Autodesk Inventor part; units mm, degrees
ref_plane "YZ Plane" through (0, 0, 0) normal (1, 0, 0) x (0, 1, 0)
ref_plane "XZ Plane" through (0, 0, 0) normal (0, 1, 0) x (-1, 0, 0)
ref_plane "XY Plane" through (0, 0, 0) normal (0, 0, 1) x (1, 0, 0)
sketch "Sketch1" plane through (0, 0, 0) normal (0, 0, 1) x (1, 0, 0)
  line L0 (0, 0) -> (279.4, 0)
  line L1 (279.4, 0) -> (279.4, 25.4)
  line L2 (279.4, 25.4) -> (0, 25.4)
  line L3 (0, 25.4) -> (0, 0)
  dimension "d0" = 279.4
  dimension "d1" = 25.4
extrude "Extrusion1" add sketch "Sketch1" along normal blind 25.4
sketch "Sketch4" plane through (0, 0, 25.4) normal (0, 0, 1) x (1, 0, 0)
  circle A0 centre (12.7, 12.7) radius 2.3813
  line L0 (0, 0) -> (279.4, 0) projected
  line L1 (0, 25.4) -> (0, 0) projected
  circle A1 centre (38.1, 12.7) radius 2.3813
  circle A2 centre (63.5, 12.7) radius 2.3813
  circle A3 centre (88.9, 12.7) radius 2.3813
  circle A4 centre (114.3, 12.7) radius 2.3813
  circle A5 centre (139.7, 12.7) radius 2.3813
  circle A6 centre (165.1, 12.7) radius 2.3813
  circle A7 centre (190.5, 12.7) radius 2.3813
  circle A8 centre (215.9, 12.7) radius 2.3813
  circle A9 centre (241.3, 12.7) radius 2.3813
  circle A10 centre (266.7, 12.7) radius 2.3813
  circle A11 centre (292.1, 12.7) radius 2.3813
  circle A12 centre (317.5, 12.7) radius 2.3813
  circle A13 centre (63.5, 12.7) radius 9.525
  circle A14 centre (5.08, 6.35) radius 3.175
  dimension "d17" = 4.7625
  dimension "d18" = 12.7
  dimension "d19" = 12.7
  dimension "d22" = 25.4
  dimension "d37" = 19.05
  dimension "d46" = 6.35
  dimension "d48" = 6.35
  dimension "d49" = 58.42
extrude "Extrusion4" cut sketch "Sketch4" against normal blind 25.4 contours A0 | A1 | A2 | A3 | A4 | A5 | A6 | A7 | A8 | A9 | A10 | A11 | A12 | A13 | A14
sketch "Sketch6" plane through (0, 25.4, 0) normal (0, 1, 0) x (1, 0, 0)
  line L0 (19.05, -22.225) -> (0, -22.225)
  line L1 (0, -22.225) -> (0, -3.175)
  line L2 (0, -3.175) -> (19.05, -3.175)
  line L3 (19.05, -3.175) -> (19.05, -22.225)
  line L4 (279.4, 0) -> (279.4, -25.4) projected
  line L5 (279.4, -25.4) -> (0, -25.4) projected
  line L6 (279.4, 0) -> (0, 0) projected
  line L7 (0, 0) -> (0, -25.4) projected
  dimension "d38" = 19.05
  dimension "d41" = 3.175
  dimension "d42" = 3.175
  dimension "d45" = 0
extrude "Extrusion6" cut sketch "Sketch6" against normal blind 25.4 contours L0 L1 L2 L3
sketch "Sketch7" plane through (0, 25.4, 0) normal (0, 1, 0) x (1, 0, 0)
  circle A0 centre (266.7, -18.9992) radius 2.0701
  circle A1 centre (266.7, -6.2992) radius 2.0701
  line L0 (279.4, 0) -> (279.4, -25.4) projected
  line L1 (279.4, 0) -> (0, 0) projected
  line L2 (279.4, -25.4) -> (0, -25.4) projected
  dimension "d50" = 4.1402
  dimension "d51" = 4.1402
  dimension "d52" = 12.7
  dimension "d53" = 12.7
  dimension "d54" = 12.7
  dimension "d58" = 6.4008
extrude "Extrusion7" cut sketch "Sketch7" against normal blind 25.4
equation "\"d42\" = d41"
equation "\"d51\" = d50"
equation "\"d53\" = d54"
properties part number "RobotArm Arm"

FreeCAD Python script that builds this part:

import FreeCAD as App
import Part
import Sketcher

V = App.Vector
Q = App.Units.Quantity


def add_polygon(sketch, points):
    """Adds a closed chain of lines whose ends are joined by coincident constraints."""
    first, n = sketch.GeometryCount, len(points)
    for a, b in zip(points, points[1:] + points[:1]):
        sketch.addGeometry(Part.LineSegment(App.Vector(*a, 0), App.Vector(*b, 0)), False)
    for i in range(n):
        sketch.addConstraint(Sketcher.Constraint("Coincident", first + i, 2, first + (i + 1) % n, 1))

doc = App.newDocument("Part")
body = doc.addObject("PartDesign::Body", "Body")

sketch1 = doc.addObject("Sketcher::SketchObject", "Sketch")
body.addObject(sketch1)
sketch1.AttachmentSupport = (doc.XY_Plane, [""])
sketch1.MapMode = "FlatFace"
add_polygon(sketch1, [(0, 25.4), (0, 0), (279.4, 0), (279.4, 25.4)])
sketch1.addConstraint([
    Sketcher.Constraint("Vertical", 0),
    Sketcher.Constraint("Horizontal", 1),
    Sketcher.Constraint("Vertical", 2),
    Sketcher.Constraint("Horizontal", 3),
    Sketcher.Constraint("Coincident", 0, 2, -1, 1),
    Sketcher.Constraint("DistanceX", 1, 1, 1, 2, Q("11 in")),
    Sketcher.Constraint("DistanceY", 0, 2, 0, 1, Q("1 in")),
])
pad1 = doc.addObject("PartDesign::Pad", "Pad")
body.addObject(pad1)
pad1.Profile = sketch1
pad1.Length = Q("1 in")

sketch2 = doc.addObject("Sketcher::SketchObject", "Sketch001")
body.addObject(sketch2)
sketch2.AttachmentSupport = (doc.XY_Plane, [""])
sketch2.MapMode = "FlatFace"
sketch2.AttachmentOffset = App.Placement(V(0, 0, 1 * 25.4), App.Rotation())
sketch2.addGeometry([
    Part.Circle(V(12.7, 12.7, 0), V(0, 0, 1), 2.3813),
    Part.Circle(V(38.1, 12.7, 0), V(0, 0, 1), 2.3813),
    Part.Circle(V(63.5, 12.7, 0), V(0, 0, 1), 9.525),
    Part.Circle(V(88.9, 12.7, 0), V(0, 0, 1), 2.3813),
    Part.Circle(V(114.3, 12.7, 0), V(0, 0, 1), 2.3813),
    Part.Circle(V(139.7, 12.7, 0), V(0, 0, 1), 2.3813),
    Part.Circle(V(165.1, 12.7, 0), V(0, 0, 1), 2.3813),
    Part.Circle(V(190.5, 12.7, 0), V(0, 0, 1), 2.3813),
    Part.Circle(V(215.9, 12.7, 0), V(0, 0, 1), 2.3813),
    Part.Circle(V(241.3, 12.7, 0), V(0, 0, 1), 2.3813),
    Part.Circle(V(266.7, 12.7, 0), V(0, 0, 1), 2.3813),
    Part.Circle(V(292.1, 12.7, 0), V(0, 0, 1), 2.3813),
    Part.Circle(V(317.5, 12.7, 0), V(0, 0, 1), 2.3813),
    Part.Circle(V(5.08, 6.35, 0), V(0, 0, 1), 3.175),
], False)
sketch2.addConstraint([
    Sketcher.Constraint("Equal", 0, 1),
    Sketcher.Constraint("Equal", 1, 3),
    Sketcher.Constraint("Equal", 3, 4),
    Sketcher.Constraint("Equal", 4, 5),
    Sketcher.Constraint("Equal", 5, 6),
    Sketcher.Constraint("Equal", 6, 7),
    Sketcher.Constraint("Equal", 7, 8),
    Sketcher.Constraint("Equal", 8, 9),
    Sketcher.Constraint("Equal", 9, 10),
    Sketcher.Constraint("Equal", 10, 11),
    Sketcher.Constraint("Equal", 11, 12),
    Sketcher.Constraint("Horizontal", 0, 3, 1, 3),
    Sketcher.Constraint("Horizontal", 1, 3, 2, 3),
    Sketcher.Constraint("Horizontal", 2, 3, 3, 3),
    Sketcher.Constraint("Horizontal", 3, 3, 4, 3),
    Sketcher.Constraint("Horizontal", 4, 3, 5, 3),
    Sketcher.Constraint("Horizontal", 5, 3, 6, 3),
    Sketcher.Constraint("Horizontal", 6, 3, 7, 3),
    Sketcher.Constraint("Horizontal", 7, 3, 8, 3),
    Sketcher.Constraint("Horizontal", 8, 3, 9, 3),
    Sketcher.Constraint("Horizontal", 9, 3, 10, 3),
    Sketcher.Constraint("Horizontal", 10, 3, 11, 3),
    Sketcher.Constraint("Horizontal", 11, 3, 12, 3),
    Sketcher.Constraint("Diameter", 2, Q("0.75 in")),
    Sketcher.Constraint("Diameter", 13, Q("0.25 in")),
    Sketcher.Constraint("Diameter", 0, Q("0.1875 in")),
    Sketcher.Constraint("DistanceX", 0, 3, 1, 3, Q("1 in")),
    Sketcher.Constraint("DistanceX", 1, 3, 2, 3, Q("1 in")),
    Sketcher.Constraint("DistanceX", 2, 3, 3, 3, Q("1 in")),
    Sketcher.Constraint("DistanceX", 3, 3, 4, 3, Q("1 in")),
    Sketcher.Constraint("DistanceX", 4, 3, 5, 3, Q("1 in")),
    Sketcher.Constraint("DistanceX", 5, 3, 6, 3, Q("1 in")),
    Sketcher.Constraint("DistanceX", 6, 3, 7, 3, Q("1 in")),
    Sketcher.Constraint("DistanceX", 7, 3, 8, 3, Q("1 in")),
    Sketcher.Constraint("DistanceX", 8, 3, 9, 3, Q("1 in")),
    Sketcher.Constraint("DistanceX", 9, 3, 10, 3, Q("1 in")),
    Sketcher.Constraint("DistanceX", 10, 3, 11, 3, Q("1 in")),
    Sketcher.Constraint("DistanceX", 11, 3, 12, 3, Q("1 in")),
    Sketcher.Constraint("DistanceX", -1, 1, 0, 3, Q("0.5 in")),
    Sketcher.Constraint("DistanceY", -1, 1, 0, 3, Q("0.5 in")),
    Sketcher.Constraint("DistanceX", 13, 3, 2, 3, Q("2.3 in")),
    Sketcher.Constraint("DistanceY", -1, 1, 13, 3, Q("0.25 in")),
])
pocket1 = doc.addObject("PartDesign::Pocket", "Pocket")
body.addObject(pocket1)
pocket1.Profile = sketch2
pocket1.Length = Q("1 in")

sketch3 = doc.addObject("Sketcher::SketchObject", "Sketch002")
body.addObject(sketch3)
sketch3.AttachmentSupport = (doc.XZ_Plane, [""])
sketch3.MapMode = "FlatFace"
sketch3.AttachmentOffset = App.Placement(V(0, 0, -1 * 25.4), App.Rotation())
add_polygon(sketch3, [(0, 22.225), (19.05, 22.225), (19.05, 3.175), (0, 3.175)])
sketch3.addConstraint([
    Sketcher.Constraint("Horizontal", 0),
    Sketcher.Constraint("Vertical", 1),
    Sketcher.Constraint("Horizontal", 2),
    Sketcher.Constraint("Vertical", 3),
    Sketcher.Constraint("PointOnObject", 2, 2, -2),
    Sketcher.Constraint("Equal", 2, 1),
    Sketcher.Constraint("DistanceX", 0, 1, 0, 2, Q("0.75 in")),
    Sketcher.Constraint("DistanceY", -1, 1, 1, 2, Q("0.125 in")),
])
pocket2 = doc.addObject("PartDesign::Pocket", "Pocket001")
body.addObject(pocket2)
pocket2.Profile = sketch3
pocket2.Length = Q("1 in")
pocket2.Reversed = True

sketch4 = doc.addObject("Sketcher::SketchObject", "Sketch003")
body.addObject(sketch4)
sketch4.AttachmentSupport = (doc.XZ_Plane, [""])
sketch4.MapMode = "FlatFace"
sketch4.AttachmentOffset = App.Placement(V(0, 0, -1 * 25.4), App.Rotation())
sketch4.addGeometry([
    Part.Circle(V(266.7, 18.9992, 0), V(0, 0, 1), 2.0701),
    Part.Circle(V(266.7, 6.2992, 0), V(0, 0, 1), 2.0701),
], False)
sketch4.addConstraint([
    Sketcher.Constraint("Equal", 0, 1),
    Sketcher.Constraint("Vertical", 0, 3, 1, 3),
    Sketcher.Constraint("Diameter", 0, Q("0.163 in")),
    Sketcher.Constraint("DistanceY", 1, 3, 0, 3, Q("0.5 in")),
    Sketcher.Constraint("DistanceX", -1, 1, 0, 3, Q("10.5 in")),
    Sketcher.Constraint("DistanceY", -1, 1, 0, 3, Q("0.748 in")),
])
pocket3 = doc.addObject("PartDesign::Pocket", "Pocket002")
body.addObject(pocket3)
pocket3.Profile = sketch4
pocket3.Length = Q("1 in")
pocket3.Reversed = True

doc.recompute()
